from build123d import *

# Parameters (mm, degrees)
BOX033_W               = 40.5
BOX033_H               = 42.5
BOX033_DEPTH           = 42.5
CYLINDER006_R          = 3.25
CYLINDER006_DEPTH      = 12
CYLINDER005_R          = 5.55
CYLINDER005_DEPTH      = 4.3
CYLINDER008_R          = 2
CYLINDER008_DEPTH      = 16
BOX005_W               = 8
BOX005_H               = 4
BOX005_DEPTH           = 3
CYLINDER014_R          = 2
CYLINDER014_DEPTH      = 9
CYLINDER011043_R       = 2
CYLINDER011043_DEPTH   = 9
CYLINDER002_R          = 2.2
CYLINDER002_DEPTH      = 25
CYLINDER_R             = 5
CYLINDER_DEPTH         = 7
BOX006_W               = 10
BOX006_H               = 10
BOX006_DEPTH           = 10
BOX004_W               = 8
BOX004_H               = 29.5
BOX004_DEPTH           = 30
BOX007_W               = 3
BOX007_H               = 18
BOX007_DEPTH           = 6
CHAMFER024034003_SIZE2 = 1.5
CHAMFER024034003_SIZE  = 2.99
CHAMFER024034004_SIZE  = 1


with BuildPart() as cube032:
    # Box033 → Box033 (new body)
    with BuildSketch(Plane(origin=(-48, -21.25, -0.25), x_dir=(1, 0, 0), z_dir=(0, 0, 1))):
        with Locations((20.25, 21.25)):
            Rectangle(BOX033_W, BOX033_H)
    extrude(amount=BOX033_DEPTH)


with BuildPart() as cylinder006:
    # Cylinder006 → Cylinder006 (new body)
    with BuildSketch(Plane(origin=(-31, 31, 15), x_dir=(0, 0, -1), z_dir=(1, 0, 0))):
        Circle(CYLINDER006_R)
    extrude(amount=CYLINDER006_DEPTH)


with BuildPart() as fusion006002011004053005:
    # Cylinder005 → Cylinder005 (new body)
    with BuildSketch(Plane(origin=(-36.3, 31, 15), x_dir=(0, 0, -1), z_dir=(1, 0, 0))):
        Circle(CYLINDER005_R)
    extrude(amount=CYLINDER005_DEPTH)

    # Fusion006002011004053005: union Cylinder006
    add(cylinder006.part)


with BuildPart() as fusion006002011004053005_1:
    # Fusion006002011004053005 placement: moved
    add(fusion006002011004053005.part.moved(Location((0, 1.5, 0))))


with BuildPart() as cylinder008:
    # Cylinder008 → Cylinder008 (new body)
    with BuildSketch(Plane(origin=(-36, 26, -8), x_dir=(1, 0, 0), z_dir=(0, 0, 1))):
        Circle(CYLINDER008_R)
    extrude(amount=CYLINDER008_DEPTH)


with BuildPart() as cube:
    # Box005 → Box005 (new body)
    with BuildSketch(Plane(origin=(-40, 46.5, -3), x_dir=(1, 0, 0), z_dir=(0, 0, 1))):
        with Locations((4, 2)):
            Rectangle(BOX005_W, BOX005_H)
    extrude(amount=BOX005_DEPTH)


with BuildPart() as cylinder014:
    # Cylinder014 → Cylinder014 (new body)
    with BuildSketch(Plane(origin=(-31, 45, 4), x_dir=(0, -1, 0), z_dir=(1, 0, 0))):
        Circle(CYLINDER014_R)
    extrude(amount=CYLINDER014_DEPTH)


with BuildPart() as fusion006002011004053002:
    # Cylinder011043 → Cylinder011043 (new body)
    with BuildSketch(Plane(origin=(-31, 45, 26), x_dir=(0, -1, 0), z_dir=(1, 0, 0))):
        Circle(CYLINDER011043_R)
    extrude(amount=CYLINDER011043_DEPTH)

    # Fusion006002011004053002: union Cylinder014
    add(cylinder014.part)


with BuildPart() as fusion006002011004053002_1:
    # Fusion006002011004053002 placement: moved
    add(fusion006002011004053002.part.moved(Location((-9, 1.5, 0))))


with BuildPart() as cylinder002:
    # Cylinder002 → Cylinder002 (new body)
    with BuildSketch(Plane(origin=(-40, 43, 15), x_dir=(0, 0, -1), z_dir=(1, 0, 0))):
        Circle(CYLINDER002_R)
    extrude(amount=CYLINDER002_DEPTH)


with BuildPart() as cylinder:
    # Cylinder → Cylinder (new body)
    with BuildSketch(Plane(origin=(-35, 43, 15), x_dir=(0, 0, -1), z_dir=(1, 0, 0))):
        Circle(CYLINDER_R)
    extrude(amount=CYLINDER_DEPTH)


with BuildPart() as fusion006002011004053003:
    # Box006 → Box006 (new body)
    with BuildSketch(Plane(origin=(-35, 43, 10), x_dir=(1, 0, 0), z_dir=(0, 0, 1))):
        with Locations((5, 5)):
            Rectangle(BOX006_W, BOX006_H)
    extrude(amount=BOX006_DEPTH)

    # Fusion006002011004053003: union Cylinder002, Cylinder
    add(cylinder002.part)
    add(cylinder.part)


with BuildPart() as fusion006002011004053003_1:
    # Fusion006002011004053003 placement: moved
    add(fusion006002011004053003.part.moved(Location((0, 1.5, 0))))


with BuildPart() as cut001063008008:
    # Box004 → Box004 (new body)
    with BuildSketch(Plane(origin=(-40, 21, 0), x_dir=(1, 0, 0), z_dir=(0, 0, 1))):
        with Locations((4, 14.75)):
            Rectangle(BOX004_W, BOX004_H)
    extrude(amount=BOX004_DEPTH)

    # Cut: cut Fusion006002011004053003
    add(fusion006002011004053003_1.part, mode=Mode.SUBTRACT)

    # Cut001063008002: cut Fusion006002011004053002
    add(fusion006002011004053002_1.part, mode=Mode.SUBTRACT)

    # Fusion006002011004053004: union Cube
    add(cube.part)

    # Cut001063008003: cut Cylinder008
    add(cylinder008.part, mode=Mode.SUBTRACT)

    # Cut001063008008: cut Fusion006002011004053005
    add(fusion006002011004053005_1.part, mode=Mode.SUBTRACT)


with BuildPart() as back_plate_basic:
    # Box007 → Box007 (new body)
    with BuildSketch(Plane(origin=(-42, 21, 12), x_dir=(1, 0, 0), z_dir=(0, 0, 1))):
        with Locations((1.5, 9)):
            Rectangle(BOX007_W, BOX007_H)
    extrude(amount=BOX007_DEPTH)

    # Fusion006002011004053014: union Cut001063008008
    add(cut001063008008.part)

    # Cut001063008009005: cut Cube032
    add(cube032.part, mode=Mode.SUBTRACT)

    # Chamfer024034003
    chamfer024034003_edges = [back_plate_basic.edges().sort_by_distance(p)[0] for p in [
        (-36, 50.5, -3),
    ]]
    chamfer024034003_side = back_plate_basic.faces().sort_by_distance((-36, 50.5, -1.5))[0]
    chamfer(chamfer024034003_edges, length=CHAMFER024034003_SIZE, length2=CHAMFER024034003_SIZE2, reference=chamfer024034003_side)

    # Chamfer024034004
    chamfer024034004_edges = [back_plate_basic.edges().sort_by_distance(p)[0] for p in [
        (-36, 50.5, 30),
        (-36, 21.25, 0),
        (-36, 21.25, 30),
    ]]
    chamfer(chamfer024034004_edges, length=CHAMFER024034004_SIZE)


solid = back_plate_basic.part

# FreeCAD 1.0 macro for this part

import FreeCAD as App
import Part
import Sketcher

V = App.Vector
Q = App.Units.Quantity


def edges_at(feature, points):
    """Names of the edges that pass closest to the given points."""
    edges = feature.Shape.Edges
    near = lambda p: min(range(len(edges)), key=lambda i: edges[i].distToShape(Part.Vertex(*p))[0])
    return sorted({f"Edge{near(p) + 1}" for p in points})

doc = App.newDocument("Part")
body = doc.addObject("PartDesign::Body", "Body")

sketch1 = body.newObject("Sketcher::SketchObject", "Sketch")
sketch1.AttachmentSupport = (doc.getObject("XY_Plane"), [""])
sketch1.MapMode = "FlatFace"
sketch1.AttachmentOffset = App.Placement(V(0, 0, -0.25), App.Rotation())
sketch1.addGeometry(Part.LineSegment(V(-48, 21, 0), V(-48, -21, 0)), False)
sketch1.addGeometry(Part.LineSegment(V(-48, -21, 0), V(-8, -21, 0)), False)
sketch1.addGeometry(Part.LineSegment(V(-8, -21, 0), V(-8, 21, 0)), False)
sketch1.addGeometry(Part.LineSegment(V(-8, 21, 0), V(-48, 21, 0)), False)
sketch1.addConstraint(Sketcher.Constraint("Coincident", 0, 2, 1, 1))
sketch1.addConstraint(Sketcher.Constraint("Coincident", 1, 2, 2, 1))
sketch1.addConstraint(Sketcher.Constraint("Coincident", 2, 2, 3, 1))
sketch1.addConstraint(Sketcher.Constraint("Coincident", 3, 2, 0, 1))
sketch1.addConstraint(Sketcher.Constraint("Vertical", 0))
sketch1.addConstraint(Sketcher.Constraint("Horizontal", 1))
sketch1.addConstraint(Sketcher.Constraint("Vertical", 2))
sketch1.addConstraint(Sketcher.Constraint("Horizontal", 3))
sketch1.addConstraint(Sketcher.Constraint("DistanceX", 1, 1, 1, 2, Q("40.5 mm")))
sketch1.addConstraint(Sketcher.Constraint("DistanceY", 0, 2, 0, 1, Q("42.5 mm")))
sketch1.addConstraint(Sketcher.Constraint("DistanceX", 0, 2, -1, 1, Q("48 mm")))
sketch1.addConstraint(Sketcher.Constraint("DistanceY", 0, 2, -1, 1, Q("21.25 mm")))
pad1 = body.newObject("PartDesign::Pad", "Pad")
pad1.Profile = sketch1
pad1.Length = 42.5
body2 = doc.addObject("PartDesign::Body", "Body001")

sketch2 = body2.newObject("Sketcher::SketchObject", "Sketch001")
sketch2.AttachmentSupport = (doc.getObject("YZ_Plane001"), [""])
sketch2.MapMode = "FlatFace"
sketch2.AttachmentOffset = App.Placement(V(0, 0, -31), App.Rotation())
sketch2.addGeometry(Part.Circle(V(31, 15, 0), V(0, 0, 1), 3.2), False)
sketch2.addConstraint(Sketcher.Constraint("Diameter", 0, Q("6.5 mm")))
sketch2.addConstraint(Sketcher.Constraint("DistanceX", -1, 1, 0, 3, Q("31 mm")))
sketch2.addConstraint(Sketcher.Constraint("DistanceY", -1, 1, 0, 3, Q("15 mm")))
pad2 = body2.newObject("PartDesign::Pad", "Pad001")
pad2.Profile = sketch2
pad2.Length = 12
body3 = doc.addObject("PartDesign::Body", "Body002")
body3.AllowCompound = True

sketch3 = body3.newObject("Sketcher::SketchObject", "Sketch002")
sketch3.AttachmentSupport = (doc.getObject("YZ_Plane002"), [""])
sketch3.MapMode = "FlatFace"
sketch3.AttachmentOffset = App.Placement(V(0, 0, -36.3), App.Rotation())
sketch3.addGeometry(Part.Circle(V(31, 15, 0), V(0, 0, 1), 6), False)
sketch3.addConstraint(Sketcher.Constraint("Diameter", 0, Q("11.1 mm")))
sketch3.addConstraint(Sketcher.Constraint("DistanceX", -1, 1, 0, 3, Q("31 mm")))
sketch3.addConstraint(Sketcher.Constraint("DistanceY", -1, 1, 0, 3, Q("15 mm")))
pad3 = body3.newObject("PartDesign::Pad", "Pad002")
pad3.Profile = sketch3
pad3.Length = 4.3
doc.recompute()

boolean = body3.newObject("PartDesign::Boolean", "Boolean")
boolean.Type = "Fuse"
boolean.addObjects([body2])
body4 = doc.addObject("PartDesign::Body", "Body003")
body4.AllowCompound = True
doc.recompute()

body3.Placement = App.Placement(V(0, 1.5, 0), App.Rotation(V(0, 0, 1), 0))
boolean2 = body4.newObject("PartDesign::Boolean", "Boolean001")
boolean2.Type = "Fuse"
boolean2.addObjects([body3])
body5 = doc.addObject("PartDesign::Body", "Body004")

sketch4 = body5.newObject("Sketcher::SketchObject", "Sketch003")
sketch4.AttachmentSupport = (doc.getObject("XY_Plane004"), [""])
sketch4.MapMode = "FlatFace"
sketch4.AttachmentOffset = App.Placement(V(0, 0, -8), App.Rotation())
sketch4.addGeometry(Part.Circle(V(-36, 26, 0), V(0, 0, 1), 2), False)
sketch4.addConstraint(Sketcher.Constraint("Diameter", 0, Q("4 mm")))
sketch4.addConstraint(Sketcher.Constraint("DistanceX", 0, 3, -1, 1, Q("36 mm")))
sketch4.addConstraint(Sketcher.Constraint("DistanceY", -1, 1, 0, 3, Q("26 mm")))
pad4 = body5.newObject("PartDesign::Pad", "Pad003")
pad4.Profile = sketch4
pad4.Length = 16
body6 = doc.addObject("PartDesign::Body", "Body005")

sketch5 = body6.newObject("Sketcher::SketchObject", "Sketch004")
sketch5.AttachmentSupport = (doc.getObject("XY_Plane005"), [""])
sketch5.MapMode = "FlatFace"
sketch5.AttachmentOffset = App.Placement(V(0, 0, -3), App.Rotation())
sketch5.addGeometry(Part.LineSegment(V(-40, 50.5, 0), V(-40, 46.5, 0)), False)
sketch5.addGeometry(Part.LineSegment(V(-40, 46.5, 0), V(-32, 46.5, 0)), False)
sketch5.addGeometry(Part.LineSegment(V(-32, 46.5, 0), V(-32, 50.5, 0)), False)
sketch5.addGeometry(Part.LineSegment(V(-32, 50.5, 0), V(-40, 50.5, 0)), False)
sketch5.addConstraint(Sketcher.Constraint("Coincident", 0, 2, 1, 1))
sketch5.addConstraint(Sketcher.Constraint("Coincident", 1, 2, 2, 1))
sketch5.addConstraint(Sketcher.Constraint("Coincident", 2, 2, 3, 1))
sketch5.addConstraint(Sketcher.Constraint("Coincident", 3, 2, 0, 1))
sketch5.addConstraint(Sketcher.Constraint("Vertical", 0))
sketch5.addConstraint(Sketcher.Constraint("Horizontal", 1))
sketch5.addConstraint(Sketcher.Constraint("Vertical", 2))
sketch5.addConstraint(Sketcher.Constraint("Horizontal", 3))
sketch5.addConstraint(Sketcher.Constraint("DistanceX", 1, 1, 1, 2, Q("8 mm")))
sketch5.addConstraint(Sketcher.Constraint("DistanceY", 0, 2, 0, 1, Q("4 mm")))
sketch5.addConstraint(Sketcher.Constraint("DistanceX", 0, 2, -1, 1, Q("40 mm")))
sketch5.addConstraint(Sketcher.Constraint("DistanceY", -1, 1, 0, 2, Q("46.5 mm")))
pad5 = body6.newObject("PartDesign::Pad", "Pad004")
pad5.Profile = sketch5
pad5.Length = 3
body7 = doc.addObject("PartDesign::Body", "Body006")

sketch6 = body7.newObject("Sketcher::SketchObject", "Sketch005")
sketch6.AttachmentSupport = (doc.getObject("YZ_Plane006"), [""])
sketch6.MapMode = "FlatFace"
sketch6.AttachmentOffset = App.Placement(V(0, 0, -31), App.Rotation())
sketch6.addGeometry(Part.Circle(V(45, 4, 0), V(0, 0, 1), 2), False)
sketch6.addConstraint(Sketcher.Constraint("Diameter", 0, Q("4 mm")))
sketch6.addConstraint(Sketcher.Constraint("DistanceX", -1, 1, 0, 3, Q("45 mm")))
sketch6.addConstraint(Sketcher.Constraint("DistanceY", -1, 1, 0, 3, Q("4 mm")))
pad6 = body7.newObject("PartDesign::Pad", "Pad005")
pad6.Profile = sketch6
pad6.Length = 9
body8 = doc.addObject("PartDesign::Body", "Body007")
body8.AllowCompound = True

sketch7 = body8.newObject("Sketcher::SketchObject", "Sketch006")
sketch7.AttachmentSupport = (doc.getObject("YZ_Plane007"), [""])
sketch7.MapMode = "FlatFace"
sketch7.AttachmentOffset = App.Placement(V(0, 0, -31), App.Rotation())
sketch7.addGeometry(Part.Circle(V(45, 26, 0), V(0, 0, 1), 2), False)
sketch7.addConstraint(Sketcher.Constraint("Diameter", 0, Q("4 mm")))
sketch7.addConstraint(Sketcher.Constraint("DistanceX", -1, 1, 0, 3, Q("45 mm")))
sketch7.addConstraint(Sketcher.Constraint("DistanceY", -1, 1, 0, 3, Q("26 mm")))
pad7 = body8.newObject("PartDesign::Pad", "Pad006")
pad7.Profile = sketch7
pad7.Length = 9
doc.recompute()

boolean3 = body8.newObject("PartDesign::Boolean", "Boolean002")
boolean3.Type = "Fuse"
boolean3.addObjects([body7])
body9 = doc.addObject("PartDesign::Body", "Body008")
body9.AllowCompound = True
doc.recompute()

body8.Placement = App.Placement(V(-9, 1.5, 0), App.Rotation(V(0, 0, 1), 0))
boolean4 = body9.newObject("PartDesign::Boolean", "Boolean003")
boolean4.Type = "Fuse"
boolean4.addObjects([body8])
body10 = doc.addObject("PartDesign::Body", "Body009")

sketch8 = body10.newObject("Sketcher::SketchObject", "Sketch007")
sketch8.AttachmentSupport = (doc.getObject("YZ_Plane009"), [""])
sketch8.MapMode = "FlatFace"
sketch8.AttachmentOffset = App.Placement(V(0, 0, -40), App.Rotation())
sketch8.addGeometry(Part.Circle(V(43, 15, 0), V(0, 0, 1), 2.2), False)
sketch8.addConstraint(Sketcher.Constraint("Diameter", 0, Q("4.4 mm")))
sketch8.addConstraint(Sketcher.Constraint("DistanceX", -1, 1, 0, 3, Q("43 mm")))
sketch8.addConstraint(Sketcher.Constraint("DistanceY", -1, 1, 0, 3, Q("15 mm")))
pad8 = body10.newObject("PartDesign::Pad", "Pad007")
pad8.Profile = sketch8
pad8.Length = 25
body11 = doc.addObject("PartDesign::Body", "Body010")

sketch9 = body11.newObject("Sketcher::SketchObject", "Sketch008")
sketch9.AttachmentSupport = (doc.getObject("YZ_Plane010"), [""])
sketch9.MapMode = "FlatFace"
sketch9.AttachmentOffset = App.Placement(V(0, 0, -35), App.Rotation())
sketch9.addGeometry(Part.Circle(V(43, 15, 0), V(0, 0, 1), 5), False)
sketch9.addConstraint(Sketcher.Constraint("Diameter", 0, Q("10 mm")))
sketch9.addConstraint(Sketcher.Constraint("DistanceX", -1, 1, 0, 3, Q("43 mm")))
sketch9.addConstraint(Sketcher.Constraint("DistanceY", -1, 1, 0, 3, Q("15 mm")))
pad9 = body11.newObject("PartDesign::Pad", "Pad008")
pad9.Profile = sketch9
pad9.Length = 7
body12 = doc.addObject("PartDesign::Body", "Body011")

sketch10 = body12.newObject("Sketcher::SketchObject", "Sketch009")
sketch10.AttachmentSupport = (doc.getObject("XY_Plane011"), [""])
sketch10.MapMode = "FlatFace"
sketch10.AttachmentOffset = App.Placement(V(0, 0, 10), App.Rotation())
sketch10.addGeometry(Part.LineSegment(V(-35, 53, 0), V(-35, 43, 0)), False)
sketch10.addGeometry(Part.LineSegment(V(-35, 43, 0), V(-25, 43, 0)), False)
sketch10.addGeometry(Part.LineSegment(V(-25, 43, 0), V(-25, 53, 0)), False)
sketch10.addGeometry(Part.LineSegment(V(-25, 53, 0), V(-35, 53, 0)), False)
sketch10.addConstraint(Sketcher.Constraint("Coincident", 0, 2, 1, 1))
sketch10.addConstraint(Sketcher.Constraint("Coincident", 1, 2, 2, 1))
sketch10.addConstraint(Sketcher.Constraint("Coincident", 2, 2, 3, 1))
sketch10.addConstraint(Sketcher.Constraint("Coincident", 3, 2, 0, 1))
sketch10.addConstraint(Sketcher.Constraint("Vertical", 0))
sketch10.addConstraint(Sketcher.Constraint("Horizontal", 1))
sketch10.addConstraint(Sketcher.Constraint("Vertical", 2))
sketch10.addConstraint(Sketcher.Constraint("Horizontal", 3))
sketch10.addConstraint(Sketcher.Constraint("Equal", 3, 0))
sketch10.addConstraint(Sketcher.Constraint("DistanceX", 1, 1, 1, 2, Q("10 mm")))
sketch10.addConstraint(Sketcher.Constraint("DistanceX", 0, 2, -1, 1, Q("35 mm")))
sketch10.addConstraint(Sketcher.Constraint("DistanceY", -1, 1, 0, 2, Q("43 mm")))
pad10 = body12.newObject("PartDesign::Pad", "Pad009")
pad10.Profile = sketch10
pad10.Length = 10
doc.recompute()

boolean5 = body12.newObject("PartDesign::Boolean", "Boolean004")
boolean5.Type = "Fuse"
boolean5.addObjects([body10])
doc.recompute()

boolean6 = body12.newObject("PartDesign::Boolean", "Boolean005")
boolean6.Type = "Fuse"
boolean6.addObjects([body11])
body13 = doc.addObject("PartDesign::Body", "Body012")
doc.recompute()

body12.Placement = App.Placement(V(0, 1.5, 0), App.Rotation(V(0, 0, 1), 0))
boolean7 = body13.newObject("PartDesign::Boolean", "Boolean006")
boolean7.Type = "Fuse"
boolean7.addObjects([body12])
body14 = doc.addObject("PartDesign::Body", "Body013")

sketch11 = body14.newObject("Sketcher::SketchObject", "Sketch010")
sketch11.AttachmentSupport = (doc.getObject("XY_Plane013"), [""])
sketch11.MapMode = "FlatFace"
sketch11.addGeometry(Part.LineSegment(V(-40, 50, 0), V(-40, 21, 0)), False)
sketch11.addGeometry(Part.LineSegment(V(-40, 21, 0), V(-32, 21, 0)), False)
sketch11.addGeometry(Part.LineSegment(V(-32, 21, 0), V(-32, 50, 0)), False)
sketch11.addGeometry(Part.LineSegment(V(-32, 50, 0), V(-40, 50, 0)), False)
sketch11.addConstraint(Sketcher.Constraint("Coincident", 0, 2, 1, 1))
sketch11.addConstraint(Sketcher.Constraint("Coincident", 1, 2, 2, 1))
sketch11.addConstraint(Sketcher.Constraint("Coincident", 2, 2, 3, 1))
sketch11.addConstraint(Sketcher.Constraint("Coincident", 3, 2, 0, 1))
sketch11.addConstraint(Sketcher.Constraint("Vertical", 0))
sketch11.addConstraint(Sketcher.Constraint("Horizontal", 1))
sketch11.addConstraint(Sketcher.Constraint("Vertical", 2))
sketch11.addConstraint(Sketcher.Constraint("Horizontal", 3))
sketch11.addConstraint(Sketcher.Constraint("DistanceX", 1, 1, 1, 2, Q("8 mm")))
sketch11.addConstraint(Sketcher.Constraint("DistanceY", 0, 2, 0, 1, Q("29.5 mm")))
sketch11.addConstraint(Sketcher.Constraint("DistanceX", 0, 2, -1, 1, Q("40 mm")))
sketch11.addConstraint(Sketcher.Constraint("DistanceY", -1, 1, 0, 2, Q("21 mm")))
pad11 = body14.newObject("PartDesign::Pad", "Pad010")
pad11.Profile = sketch11
pad11.Length = 30
doc.recompute()

boolean8 = body14.newObject("PartDesign::Boolean", "Boolean007")
boolean8.Type = "Cut"
boolean8.addObjects([body13])
doc.recompute()

boolean9 = body14.newObject("PartDesign::Boolean", "Boolean008")
boolean9.Type = "Cut"
boolean9.addObjects([body9])
doc.recompute()

boolean10 = body14.newObject("PartDesign::Boolean", "Boolean009")
boolean10.Type = "Fuse"
boolean10.addObjects([body6])
doc.recompute()

boolean11 = body14.newObject("PartDesign::Boolean", "Boolean010")
boolean11.Type = "Cut"
boolean11.addObjects([body5])
doc.recompute()

boolean12 = body14.newObject("PartDesign::Boolean", "Boolean011")
boolean12.Type = "Cut"
boolean12.addObjects([body4])
body15 = doc.addObject("PartDesign::Body", "Body014")

sketch12 = body15.newObject("Sketcher::SketchObject", "Sketch011")
sketch12.AttachmentSupport = (doc.getObject("XY_Plane014"), [""])
sketch12.MapMode = "FlatFace"
sketch12.AttachmentOffset = App.Placement(V(0, 0, 12), App.Rotation())
sketch12.addGeometry(Part.LineSegment(V(-42, 39, 0), V(-42, 21, 0)), False)
sketch12.addGeometry(Part.LineSegment(V(-42, 21, 0), V(-39, 21, 0)), False)
sketch12.addGeometry(Part.LineSegment(V(-39, 21, 0), V(-39, 39, 0)), False)
sketch12.addGeometry(Part.LineSegment(V(-39, 39, 0), V(-42, 39, 0)), False)
sketch12.addConstraint(Sketcher.Constraint("Coincident", 0, 2, 1, 1))
sketch12.addConstraint(Sketcher.Constraint("Coincident", 1, 2, 2, 1))
sketch12.addConstraint(Sketcher.Constraint("Coincident", 2, 2, 3, 1))
sketch12.addConstraint(Sketcher.Constraint("Coincident", 3, 2, 0, 1))
sketch12.addConstraint(Sketcher.Constraint("Vertical", 0))
sketch12.addConstraint(Sketcher.Constraint("Horizontal", 1))
sketch12.addConstraint(Sketcher.Constraint("Vertical", 2))
sketch12.addConstraint(Sketcher.Constraint("Horizontal", 3))
sketch12.addConstraint(Sketcher.Constraint("DistanceX", 1, 1, 1, 2, Q("3 mm")))
sketch12.addConstraint(Sketcher.Constraint("DistanceY", 0, 2, 0, 1, Q("18 mm")))
sketch12.addConstraint(Sketcher.Constraint("DistanceX", 0, 2, -1, 1, Q("42 mm")))
sketch12.addConstraint(Sketcher.Constraint("DistanceY", -1, 1, 0, 2, Q("21 mm")))
pad12 = body15.newObject("PartDesign::Pad", "Pad011")
pad12.Profile = sketch12
pad12.Length = 6
doc.recompute()

boolean13 = body15.newObject("PartDesign::Boolean", "Boolean012")
boolean13.Type = "Fuse"
boolean13.addObjects([body14])
doc.recompute()

boolean14 = body15.newObject("PartDesign::Boolean", "Boolean013")
boolean14.Type = "Cut"
boolean14.addObjects([body])
doc.recompute()

chamfer = body15.newObject("PartDesign::Chamfer", "Chamfer")
chamfer.Base = (boolean14, edges_at(boolean14, [(-36, 50.5, -3)]))
chamfer.ChamferType = "Two distances"
chamfer.Size = 2.99
chamfer.Size2 = 1.5
doc.recompute()

chamfer2 = body15.newObject("PartDesign::Chamfer", "Chamfer001")
chamfer2.Base = (chamfer, edges_at(chamfer, [(-36, 50.5, 30), (-36, 21.25, 0), (-36, 21.25, 30)]))
chamfer2.Size = 1

doc.recompute()
